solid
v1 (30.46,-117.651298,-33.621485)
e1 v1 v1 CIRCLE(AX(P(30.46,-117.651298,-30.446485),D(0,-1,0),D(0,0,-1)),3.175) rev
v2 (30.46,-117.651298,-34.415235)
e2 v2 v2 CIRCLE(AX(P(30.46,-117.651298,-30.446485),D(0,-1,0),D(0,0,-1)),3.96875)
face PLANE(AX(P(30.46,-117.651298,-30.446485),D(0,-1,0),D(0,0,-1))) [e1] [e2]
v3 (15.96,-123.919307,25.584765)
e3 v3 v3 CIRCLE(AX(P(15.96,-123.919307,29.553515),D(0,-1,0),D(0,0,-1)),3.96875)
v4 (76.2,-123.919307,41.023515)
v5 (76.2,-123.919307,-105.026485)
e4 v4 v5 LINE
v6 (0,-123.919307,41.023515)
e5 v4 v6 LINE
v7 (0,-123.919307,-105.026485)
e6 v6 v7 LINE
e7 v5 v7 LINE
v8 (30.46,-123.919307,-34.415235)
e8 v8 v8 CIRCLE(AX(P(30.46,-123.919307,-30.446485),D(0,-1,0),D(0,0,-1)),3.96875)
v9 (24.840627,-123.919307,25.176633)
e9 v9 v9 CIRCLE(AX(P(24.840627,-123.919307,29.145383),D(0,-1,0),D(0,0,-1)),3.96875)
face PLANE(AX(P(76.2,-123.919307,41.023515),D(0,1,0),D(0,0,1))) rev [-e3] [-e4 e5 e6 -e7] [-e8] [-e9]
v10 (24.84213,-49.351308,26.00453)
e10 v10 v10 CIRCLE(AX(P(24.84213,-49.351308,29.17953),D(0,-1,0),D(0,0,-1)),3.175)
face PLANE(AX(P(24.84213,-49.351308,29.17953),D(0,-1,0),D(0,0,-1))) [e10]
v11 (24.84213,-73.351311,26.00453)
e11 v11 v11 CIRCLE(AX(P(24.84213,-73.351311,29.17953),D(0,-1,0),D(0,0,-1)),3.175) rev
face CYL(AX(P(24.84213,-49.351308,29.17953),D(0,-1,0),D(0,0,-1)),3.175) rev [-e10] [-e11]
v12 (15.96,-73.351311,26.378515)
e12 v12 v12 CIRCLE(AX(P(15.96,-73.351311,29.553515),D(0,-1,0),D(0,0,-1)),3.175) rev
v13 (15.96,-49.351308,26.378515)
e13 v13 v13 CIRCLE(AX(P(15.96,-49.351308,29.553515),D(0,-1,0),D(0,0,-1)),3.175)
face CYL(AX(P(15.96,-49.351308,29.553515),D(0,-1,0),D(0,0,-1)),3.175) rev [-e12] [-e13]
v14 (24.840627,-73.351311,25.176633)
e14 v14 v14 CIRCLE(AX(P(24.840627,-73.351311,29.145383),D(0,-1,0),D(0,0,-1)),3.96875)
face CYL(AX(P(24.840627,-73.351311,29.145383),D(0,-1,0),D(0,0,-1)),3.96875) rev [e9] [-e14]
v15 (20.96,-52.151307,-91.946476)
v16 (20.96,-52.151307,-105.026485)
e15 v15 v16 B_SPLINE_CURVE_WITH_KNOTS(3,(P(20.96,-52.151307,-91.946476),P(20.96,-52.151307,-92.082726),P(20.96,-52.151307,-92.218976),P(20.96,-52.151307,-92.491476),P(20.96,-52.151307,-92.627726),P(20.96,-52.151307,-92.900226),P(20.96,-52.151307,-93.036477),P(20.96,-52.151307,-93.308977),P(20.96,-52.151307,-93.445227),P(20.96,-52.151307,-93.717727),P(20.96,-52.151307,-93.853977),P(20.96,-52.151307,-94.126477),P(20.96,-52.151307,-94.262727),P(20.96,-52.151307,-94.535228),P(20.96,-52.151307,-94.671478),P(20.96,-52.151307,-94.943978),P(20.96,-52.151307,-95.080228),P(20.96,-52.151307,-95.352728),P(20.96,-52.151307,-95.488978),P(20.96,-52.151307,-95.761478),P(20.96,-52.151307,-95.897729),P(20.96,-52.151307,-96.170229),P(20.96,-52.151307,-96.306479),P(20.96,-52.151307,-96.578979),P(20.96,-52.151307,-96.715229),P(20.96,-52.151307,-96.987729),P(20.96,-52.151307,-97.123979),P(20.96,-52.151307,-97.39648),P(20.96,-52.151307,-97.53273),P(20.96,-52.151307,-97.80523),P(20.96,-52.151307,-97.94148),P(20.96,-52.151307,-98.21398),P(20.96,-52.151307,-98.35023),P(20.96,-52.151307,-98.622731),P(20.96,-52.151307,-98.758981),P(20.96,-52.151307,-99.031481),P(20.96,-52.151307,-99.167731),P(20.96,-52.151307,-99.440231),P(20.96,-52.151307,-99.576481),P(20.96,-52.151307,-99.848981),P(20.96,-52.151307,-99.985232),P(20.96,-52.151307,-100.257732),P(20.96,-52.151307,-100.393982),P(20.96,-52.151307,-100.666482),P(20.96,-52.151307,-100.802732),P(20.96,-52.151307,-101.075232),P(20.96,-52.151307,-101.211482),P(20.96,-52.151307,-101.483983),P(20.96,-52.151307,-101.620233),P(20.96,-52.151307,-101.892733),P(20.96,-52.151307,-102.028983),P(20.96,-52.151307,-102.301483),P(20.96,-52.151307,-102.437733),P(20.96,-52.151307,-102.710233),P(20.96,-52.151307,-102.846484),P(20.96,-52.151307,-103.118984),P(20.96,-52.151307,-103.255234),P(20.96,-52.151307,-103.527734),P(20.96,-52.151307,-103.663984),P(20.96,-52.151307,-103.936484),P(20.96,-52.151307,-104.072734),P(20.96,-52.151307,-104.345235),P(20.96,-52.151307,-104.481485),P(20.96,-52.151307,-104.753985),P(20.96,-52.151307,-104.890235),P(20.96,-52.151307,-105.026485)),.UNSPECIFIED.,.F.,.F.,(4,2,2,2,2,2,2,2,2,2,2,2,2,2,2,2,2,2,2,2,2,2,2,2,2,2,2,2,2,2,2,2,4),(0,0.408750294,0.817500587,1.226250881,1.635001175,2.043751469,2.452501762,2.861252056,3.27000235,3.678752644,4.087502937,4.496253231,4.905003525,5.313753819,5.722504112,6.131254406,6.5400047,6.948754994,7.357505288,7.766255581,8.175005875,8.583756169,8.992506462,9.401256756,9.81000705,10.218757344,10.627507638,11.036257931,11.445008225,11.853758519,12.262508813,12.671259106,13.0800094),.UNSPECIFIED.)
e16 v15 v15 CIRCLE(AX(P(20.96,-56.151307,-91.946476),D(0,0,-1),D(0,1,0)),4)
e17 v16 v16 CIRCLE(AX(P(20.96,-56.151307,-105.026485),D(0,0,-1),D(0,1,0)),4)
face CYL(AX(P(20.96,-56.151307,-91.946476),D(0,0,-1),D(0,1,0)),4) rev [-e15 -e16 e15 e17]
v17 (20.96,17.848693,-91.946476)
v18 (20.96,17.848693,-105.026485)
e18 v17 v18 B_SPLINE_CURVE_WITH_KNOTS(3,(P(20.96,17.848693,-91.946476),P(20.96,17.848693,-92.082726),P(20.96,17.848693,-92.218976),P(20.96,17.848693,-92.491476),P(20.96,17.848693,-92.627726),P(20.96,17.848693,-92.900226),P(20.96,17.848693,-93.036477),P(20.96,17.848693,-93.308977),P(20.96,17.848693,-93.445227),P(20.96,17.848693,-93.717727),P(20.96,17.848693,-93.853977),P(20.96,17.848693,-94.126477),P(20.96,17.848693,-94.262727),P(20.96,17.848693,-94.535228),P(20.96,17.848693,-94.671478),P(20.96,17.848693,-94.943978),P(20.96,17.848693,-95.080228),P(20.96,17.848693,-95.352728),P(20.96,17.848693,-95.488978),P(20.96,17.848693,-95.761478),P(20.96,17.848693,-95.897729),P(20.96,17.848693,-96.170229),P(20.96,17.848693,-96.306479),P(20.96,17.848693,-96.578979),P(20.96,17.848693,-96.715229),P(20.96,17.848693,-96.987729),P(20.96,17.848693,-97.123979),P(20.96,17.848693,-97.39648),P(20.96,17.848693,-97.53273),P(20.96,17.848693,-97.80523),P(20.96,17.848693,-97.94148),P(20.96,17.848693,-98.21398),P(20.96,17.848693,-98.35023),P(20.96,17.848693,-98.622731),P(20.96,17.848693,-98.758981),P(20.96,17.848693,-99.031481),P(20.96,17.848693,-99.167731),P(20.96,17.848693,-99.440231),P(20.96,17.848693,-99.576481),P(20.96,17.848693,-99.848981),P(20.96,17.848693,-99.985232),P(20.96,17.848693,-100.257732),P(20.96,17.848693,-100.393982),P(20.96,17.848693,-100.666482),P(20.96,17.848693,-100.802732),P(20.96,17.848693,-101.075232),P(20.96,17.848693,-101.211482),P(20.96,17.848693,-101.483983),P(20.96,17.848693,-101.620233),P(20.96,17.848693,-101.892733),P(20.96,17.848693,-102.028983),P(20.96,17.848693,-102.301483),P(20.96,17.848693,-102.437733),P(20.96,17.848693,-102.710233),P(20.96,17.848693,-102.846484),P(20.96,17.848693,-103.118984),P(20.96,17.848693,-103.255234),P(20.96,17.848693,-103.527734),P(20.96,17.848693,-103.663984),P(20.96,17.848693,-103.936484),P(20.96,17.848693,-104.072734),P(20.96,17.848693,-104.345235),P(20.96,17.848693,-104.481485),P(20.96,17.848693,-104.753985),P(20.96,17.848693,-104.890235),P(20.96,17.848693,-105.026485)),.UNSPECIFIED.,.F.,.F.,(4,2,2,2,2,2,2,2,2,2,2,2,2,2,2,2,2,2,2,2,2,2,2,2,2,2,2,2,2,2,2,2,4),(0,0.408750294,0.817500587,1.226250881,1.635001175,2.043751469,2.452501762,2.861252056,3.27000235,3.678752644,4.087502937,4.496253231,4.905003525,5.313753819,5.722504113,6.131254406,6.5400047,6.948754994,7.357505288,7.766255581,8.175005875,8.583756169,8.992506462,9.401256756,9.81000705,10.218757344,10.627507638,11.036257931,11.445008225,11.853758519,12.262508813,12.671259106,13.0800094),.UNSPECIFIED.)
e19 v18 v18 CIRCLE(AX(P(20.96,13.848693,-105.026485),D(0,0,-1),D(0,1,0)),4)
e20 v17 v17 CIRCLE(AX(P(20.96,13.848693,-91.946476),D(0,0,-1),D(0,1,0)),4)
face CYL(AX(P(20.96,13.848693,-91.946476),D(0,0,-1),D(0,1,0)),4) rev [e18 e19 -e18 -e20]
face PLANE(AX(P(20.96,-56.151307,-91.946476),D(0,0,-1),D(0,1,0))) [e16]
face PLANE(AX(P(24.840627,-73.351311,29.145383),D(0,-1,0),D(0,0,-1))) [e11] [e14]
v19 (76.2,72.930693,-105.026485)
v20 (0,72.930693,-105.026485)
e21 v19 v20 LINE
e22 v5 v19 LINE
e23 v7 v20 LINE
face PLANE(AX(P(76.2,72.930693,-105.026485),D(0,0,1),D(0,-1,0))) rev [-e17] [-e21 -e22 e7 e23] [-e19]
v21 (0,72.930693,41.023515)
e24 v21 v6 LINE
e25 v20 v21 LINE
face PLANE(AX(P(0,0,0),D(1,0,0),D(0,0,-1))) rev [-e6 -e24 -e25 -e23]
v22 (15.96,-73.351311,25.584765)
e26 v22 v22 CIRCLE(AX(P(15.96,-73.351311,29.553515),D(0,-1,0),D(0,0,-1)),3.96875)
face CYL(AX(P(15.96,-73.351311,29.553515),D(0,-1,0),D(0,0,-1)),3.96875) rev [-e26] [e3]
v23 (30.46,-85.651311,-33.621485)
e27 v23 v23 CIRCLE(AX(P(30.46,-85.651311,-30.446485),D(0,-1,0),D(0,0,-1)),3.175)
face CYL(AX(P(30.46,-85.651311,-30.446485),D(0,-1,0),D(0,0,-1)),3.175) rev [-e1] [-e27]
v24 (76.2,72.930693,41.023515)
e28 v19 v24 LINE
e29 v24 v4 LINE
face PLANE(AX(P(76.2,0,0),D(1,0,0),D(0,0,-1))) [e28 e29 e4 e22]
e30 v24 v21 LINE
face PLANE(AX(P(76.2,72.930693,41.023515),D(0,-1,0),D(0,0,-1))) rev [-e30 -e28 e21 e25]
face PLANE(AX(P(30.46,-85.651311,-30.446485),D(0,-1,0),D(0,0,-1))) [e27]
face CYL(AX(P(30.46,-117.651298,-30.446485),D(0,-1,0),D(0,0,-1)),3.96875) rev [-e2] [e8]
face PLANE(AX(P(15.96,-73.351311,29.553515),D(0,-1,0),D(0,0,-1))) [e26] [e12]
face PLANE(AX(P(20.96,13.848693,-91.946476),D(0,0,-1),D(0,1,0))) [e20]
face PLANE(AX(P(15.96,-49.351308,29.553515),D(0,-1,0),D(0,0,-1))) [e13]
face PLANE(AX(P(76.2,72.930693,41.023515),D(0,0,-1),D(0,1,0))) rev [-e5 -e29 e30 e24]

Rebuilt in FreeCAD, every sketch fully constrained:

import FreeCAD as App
import Part
import Sketcher
Q = App.Units.Quantity

doc = App.newDocument("Part")
body = doc.addObject("PartDesign::Body", "Body")

sketch1 = body.newObject("Sketcher::SketchObject", "Sketch")
sketch1.AttachmentSupport = (doc.getObject("YZ_Plane"), [""])
sketch1.MapMode = "FlatFace"
sketch1.addGeometry(Part.LineSegment(App.Vector(73, 41, 0), App.Vector(-124, 41, 0)), False)
sketch1.addGeometry(Part.LineSegment(App.Vector(-124, 41, 0), App.Vector(-124, -105, 0)), False)
sketch1.addGeometry(Part.LineSegment(App.Vector(-124, -105, 0), App.Vector(73, -105, 0)), False)
sketch1.addGeometry(Part.LineSegment(App.Vector(73, -105, 0), App.Vector(73, 41, 0)), False)
sketch1.addConstraint(Sketcher.Constraint("Coincident", 0, 2, 1, 1))
sketch1.addConstraint(Sketcher.Constraint("Coincident", 1, 2, 2, 1))
sketch1.addConstraint(Sketcher.Constraint("Coincident", 2, 2, 3, 1))
sketch1.addConstraint(Sketcher.Constraint("Coincident", 3, 2, 0, 1))
sketch1.addConstraint(Sketcher.Constraint("Horizontal", 0))
sketch1.addConstraint(Sketcher.Constraint("Vertical", 1))
sketch1.addConstraint(Sketcher.Constraint("Horizontal", 2))
sketch1.addConstraint(Sketcher.Constraint("Vertical", 3))
sketch1.addConstraint(Sketcher.Constraint("DistanceX", 0, 2, 0, 1, Q("7.75 in")))
sketch1.addConstraint(Sketcher.Constraint("DistanceY", 1, 2, 1, 1, Q("5.75 in")))
sketch1.addConstraint(Sketcher.Constraint("DistanceX", 0, 2, -1, 1, Q("123.919307 mm")))
sketch1.addConstraint(Sketcher.Constraint("DistanceY", -1, 1, 0, 2, Q("41.023515 mm")))
pad1 = body.newObject("PartDesign::Pad", "Pad")
pad1.Profile = sketch1
pad1.Length = Q("3 in")

sketch2 = body.newObject("Sketcher::SketchObject", "Sketch001")
sketch2.AttachmentSupport = (doc.getObject("XZ_Plane"), [""])
sketch2.MapMode = "FlatFace"
sketch2.AttachmentOffset = App.Placement(App.Vector(0, 0, 123.919307), App.Rotation())
sketch2.addGeometry(Part.Circle(App.Vector(16, 29.6, 0), App.Vector(0, 0, 1), 3.2), False)
sketch2.addGeometry(Part.Circle(App.Vector(24.8, 29.2, 0), App.Vector(0, 0, 1), 3.2), False)
sketch2.addConstraint(Sketcher.Constraint("Equal", 0, 1))
sketch2.addConstraint(Sketcher.Constraint("Diameter", 0, Q("0.25 in")))
sketch2.addConstraint(Sketcher.Constraint("DistanceX", -1, 1, 0, 3, Q("15.96 mm")))
sketch2.addConstraint(Sketcher.Constraint("DistanceX", -1, 1, 1, 3, Q("24.84213 mm")))
sketch2.addConstraint(Sketcher.Constraint("DistanceY", -1, 1, 1, 3, Q("29.17953 mm")))
sketch2.addConstraint(Sketcher.Constraint("DistanceY", -1, 1, 0, 3, Q("29.553515 mm")))
pocket1 = body.newObject("PartDesign::Pocket", "Pocket")
pocket1.Profile = sketch2
pocket1.Length = 74.567999

sketch3 = body.newObject("Sketcher::SketchObject", "Sketch002")
sketch3.AttachmentSupport = (doc.getObject("XZ_Plane"), [""])
sketch3.MapMode = "FlatFace"
sketch3.AttachmentOffset = App.Placement(App.Vector(0, 0, 123.919307), App.Rotation())
sketch3.addGeometry(Part.Circle(App.Vector(24.8, 29.1, 0), App.Vector(0, 0, 1), 4), False)
sketch3.addGeometry(Part.Circle(App.Vector(16, 29.6, 0), App.Vector(0, 0, 1), 4), False)
sketch3.addConstraint(Sketcher.Constraint("Equal", 0, 1))
sketch3.addConstraint(Sketcher.Constraint("Diameter", 0, Q("0.3125 in")))
sketch3.addConstraint(Sketcher.Constraint("DistanceX", -1, 1, 1, 3, Q("15.96 mm")))
sketch3.addConstraint(Sketcher.Constraint("DistanceY", 0, 3, 1, 3, Q("0.408132 mm")))
sketch3.addConstraint(Sketcher.Constraint("DistanceX", -1, 1, 0, 3, Q("24.840627 mm")))
sketch3.addConstraint(Sketcher.Constraint("DistanceY", -1, 1, 0, 3, Q("29.145383 mm")))
pocket2 = body.newObject("PartDesign::Pocket", "Pocket001")
pocket2.Profile = sketch3
pocket2.Length = 50.567996

sketch4 = body.newObject("Sketcher::SketchObject", "Sketch003")
sketch4.AttachmentSupport = (doc.getObject("XZ_Plane"), [""])
sketch4.MapMode = "FlatFace"
sketch4.AttachmentOffset = App.Placement(App.Vector(0, 0, 123.919307), App.Rotation())
sketch4.addGeometry(Part.Circle(App.Vector(30.5, -30.4, 0), App.Vector(0, 0, 1), 3.2), False)
sketch4.addConstraint(Sketcher.Constraint("Diameter", 0, Q("0.25 in")))
sketch4.addConstraint(Sketcher.Constraint("DistanceX", -1, 1, 0, 3, Q("30.46 mm")))
sketch4.addConstraint(Sketcher.Constraint("DistanceY", 0, 3, -1, 1, Q("30.446485 mm")))
pocket3 = body.newObject("PartDesign::Pocket", "Pocket002")
pocket3.Profile = sketch4
pocket3.Length = 38.267996

sketch5 = body.newObject("Sketcher::SketchObject", "Sketch004")
sketch5.AttachmentSupport = (doc.getObject("XZ_Plane"), [""])
sketch5.MapMode = "FlatFace"
sketch5.AttachmentOffset = App.Placement(App.Vector(0, 0, 123.919307), App.Rotation())
sketch5.addGeometry(Part.Circle(App.Vector(30.5, -30.4, 0), App.Vector(0, 0, 1), 4), False)
sketch5.addConstraint(Sketcher.Constraint("Diameter", 0, Q("0.3125 in")))
sketch5.addConstraint(Sketcher.Constraint("DistanceX", -1, 1, 0, 3, Q("30.46 mm")))
sketch5.addConstraint(Sketcher.Constraint("DistanceY", 0, 3, -1, 1, Q("30.446485 mm")))
pocket4 = body.newObject("PartDesign::Pocket", "Pocket003")
pocket4.Profile = sketch5
pocket4.Length = 6.268009

sketch6 = body.newObject("Sketcher::SketchObject", "Sketch005")
sketch6.AttachmentSupport = (doc.getObject("XY_Plane"), [""])
sketch6.MapMode = "FlatFace"
sketch6.AttachmentOffset = App.Placement(App.Vector(0, 0, -105.026485), App.Rotation())
sketch6.addGeometry(Part.Circle(App.Vector(21, -56.2, 0), App.Vector(0, 0, 1), 4), False)
sketch6.addGeometry(Part.Circle(App.Vector(21, 13.8, 0), App.Vector(0, 0, 1), 4), False)
sketch6.addConstraint(Sketcher.Constraint("Equal", 0, 1))
sketch6.addConstraint(Sketcher.Constraint("Vertical", 0, 3, 1, 3))
sketch6.addConstraint(Sketcher.Constraint("Diameter", 0, Q("8 mm")))
sketch6.addConstraint(Sketcher.Constraint("DistanceX", -1, 1, 0, 3, Q("20.96 mm")))
sketch6.addConstraint(Sketcher.Constraint("DistanceY", 0, 3, 1, 3, Q("70 mm")))
sketch6.addConstraint(Sketcher.Constraint("DistanceY", 0, 3, -1, 1, Q("56.151307 mm")))
pocket5 = body.newObject("PartDesign::Pocket", "Pocket004")
pocket5.Profile = sketch6
pocket5.Length = 13.080009
pocket5.Reversed = True

doc.recompute()
